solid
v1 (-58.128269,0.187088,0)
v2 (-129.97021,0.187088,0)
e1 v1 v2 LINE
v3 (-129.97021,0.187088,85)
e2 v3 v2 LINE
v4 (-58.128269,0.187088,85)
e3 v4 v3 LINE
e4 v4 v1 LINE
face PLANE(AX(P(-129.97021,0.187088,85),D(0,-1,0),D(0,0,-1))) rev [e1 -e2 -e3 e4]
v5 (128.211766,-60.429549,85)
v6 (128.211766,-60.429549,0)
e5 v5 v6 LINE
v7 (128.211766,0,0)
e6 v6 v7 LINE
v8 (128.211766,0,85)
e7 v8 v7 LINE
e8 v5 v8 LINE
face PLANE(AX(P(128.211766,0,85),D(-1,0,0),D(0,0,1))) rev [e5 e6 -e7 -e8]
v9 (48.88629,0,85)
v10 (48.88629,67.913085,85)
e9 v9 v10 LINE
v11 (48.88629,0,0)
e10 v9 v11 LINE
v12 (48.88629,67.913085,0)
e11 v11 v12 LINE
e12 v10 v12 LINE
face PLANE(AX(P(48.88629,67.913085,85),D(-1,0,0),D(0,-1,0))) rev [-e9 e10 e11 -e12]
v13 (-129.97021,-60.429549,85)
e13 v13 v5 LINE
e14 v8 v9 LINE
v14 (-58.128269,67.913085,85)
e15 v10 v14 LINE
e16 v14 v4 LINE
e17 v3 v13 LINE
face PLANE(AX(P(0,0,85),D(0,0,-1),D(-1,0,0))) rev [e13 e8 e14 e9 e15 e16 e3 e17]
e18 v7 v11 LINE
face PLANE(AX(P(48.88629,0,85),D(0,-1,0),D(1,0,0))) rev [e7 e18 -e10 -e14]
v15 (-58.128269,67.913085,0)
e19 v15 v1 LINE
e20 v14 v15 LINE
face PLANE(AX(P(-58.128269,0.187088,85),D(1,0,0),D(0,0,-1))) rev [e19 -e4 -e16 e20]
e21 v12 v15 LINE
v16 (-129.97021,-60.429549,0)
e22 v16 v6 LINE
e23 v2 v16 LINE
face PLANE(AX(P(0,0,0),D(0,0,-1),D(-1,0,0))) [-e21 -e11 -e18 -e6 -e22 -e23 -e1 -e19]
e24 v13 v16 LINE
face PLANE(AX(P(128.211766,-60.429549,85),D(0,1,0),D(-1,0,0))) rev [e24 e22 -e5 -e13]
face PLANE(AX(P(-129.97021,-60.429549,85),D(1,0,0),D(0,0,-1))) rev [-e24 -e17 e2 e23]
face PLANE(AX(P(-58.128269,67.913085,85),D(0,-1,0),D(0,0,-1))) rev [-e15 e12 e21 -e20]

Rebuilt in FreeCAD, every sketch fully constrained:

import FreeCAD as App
import Part
import Sketcher
Q = App.Units.Quantity


def add_polygon(sketch, points):
    """Adds a closed chain of lines whose ends are joined by coincident constraints."""
    first, n = sketch.GeometryCount, len(points)
    for a, b in zip(points, points[1:] + points[:1]):
        sketch.addGeometry(Part.LineSegment(App.Vector(*a, 0), App.Vector(*b, 0)), False)
    for i in range(n):
        sketch.addConstraint(Sketcher.Constraint("Coincident", first + i, 2, first + (i + 1) % n, 1))

doc = App.newDocument("Part")
body = doc.addObject("PartDesign::Body", "Body")

# Sketch on XY plane
sketch1 = doc.addObject("Sketcher::SketchObject", "Sketch")
body.addObject(sketch1)
sketch1.AttachmentSupport = (doc.XY_Plane, [""])
sketch1.MapMode = "FlatFace"
add_polygon(sketch1, [(49, 68), (-58, 68), (-58, 0), (-130, 0), (-130, -60), (128, -60), (128, 0), (49, 0)])  # lines 0-7
sketch1.addConstraint([
    Sketcher.Constraint("Horizontal", 0),
    Sketcher.Constraint("Vertical", 1),
    Sketcher.Constraint("Horizontal", 2),
    Sketcher.Constraint("Vertical", 3),
    Sketcher.Constraint("Horizontal", 4),
    Sketcher.Constraint("Vertical", 5),
    Sketcher.Constraint("Horizontal", 6),
    Sketcher.Constraint("Vertical", 7),
    Sketcher.Constraint("PointOnObject", 5, 2, -1),
    Sketcher.Constraint("DistanceX", 0, 2, 0, 1, Q("107.014558 mm")),
    Sketcher.Constraint("DistanceX", 2, 2, 2, 1, Q("71.841941 mm")),
    Sketcher.Constraint("DistanceY", 5, 1, 5, 2, Q("60.429549 mm")),
    Sketcher.Constraint("DistanceX", 4, 1, 4, 2, Q("258.181976 mm")),
    Sketcher.Constraint("DistanceY", 1, 2, 1, 1, Q("67.725997 mm")),
    Sketcher.Constraint("DistanceY", 3, 2, 3, 1, Q("60.616638 mm")),
    Sketcher.Constraint("DistanceX", 0, 2, -1, 1, Q("58.128269 mm")),
])
pad1 = doc.addObject("PartDesign::Pad", "Pad")
body.addObject(pad1)
pad1.Profile = sketch1
pad1.Length = 85

doc.recompute()
